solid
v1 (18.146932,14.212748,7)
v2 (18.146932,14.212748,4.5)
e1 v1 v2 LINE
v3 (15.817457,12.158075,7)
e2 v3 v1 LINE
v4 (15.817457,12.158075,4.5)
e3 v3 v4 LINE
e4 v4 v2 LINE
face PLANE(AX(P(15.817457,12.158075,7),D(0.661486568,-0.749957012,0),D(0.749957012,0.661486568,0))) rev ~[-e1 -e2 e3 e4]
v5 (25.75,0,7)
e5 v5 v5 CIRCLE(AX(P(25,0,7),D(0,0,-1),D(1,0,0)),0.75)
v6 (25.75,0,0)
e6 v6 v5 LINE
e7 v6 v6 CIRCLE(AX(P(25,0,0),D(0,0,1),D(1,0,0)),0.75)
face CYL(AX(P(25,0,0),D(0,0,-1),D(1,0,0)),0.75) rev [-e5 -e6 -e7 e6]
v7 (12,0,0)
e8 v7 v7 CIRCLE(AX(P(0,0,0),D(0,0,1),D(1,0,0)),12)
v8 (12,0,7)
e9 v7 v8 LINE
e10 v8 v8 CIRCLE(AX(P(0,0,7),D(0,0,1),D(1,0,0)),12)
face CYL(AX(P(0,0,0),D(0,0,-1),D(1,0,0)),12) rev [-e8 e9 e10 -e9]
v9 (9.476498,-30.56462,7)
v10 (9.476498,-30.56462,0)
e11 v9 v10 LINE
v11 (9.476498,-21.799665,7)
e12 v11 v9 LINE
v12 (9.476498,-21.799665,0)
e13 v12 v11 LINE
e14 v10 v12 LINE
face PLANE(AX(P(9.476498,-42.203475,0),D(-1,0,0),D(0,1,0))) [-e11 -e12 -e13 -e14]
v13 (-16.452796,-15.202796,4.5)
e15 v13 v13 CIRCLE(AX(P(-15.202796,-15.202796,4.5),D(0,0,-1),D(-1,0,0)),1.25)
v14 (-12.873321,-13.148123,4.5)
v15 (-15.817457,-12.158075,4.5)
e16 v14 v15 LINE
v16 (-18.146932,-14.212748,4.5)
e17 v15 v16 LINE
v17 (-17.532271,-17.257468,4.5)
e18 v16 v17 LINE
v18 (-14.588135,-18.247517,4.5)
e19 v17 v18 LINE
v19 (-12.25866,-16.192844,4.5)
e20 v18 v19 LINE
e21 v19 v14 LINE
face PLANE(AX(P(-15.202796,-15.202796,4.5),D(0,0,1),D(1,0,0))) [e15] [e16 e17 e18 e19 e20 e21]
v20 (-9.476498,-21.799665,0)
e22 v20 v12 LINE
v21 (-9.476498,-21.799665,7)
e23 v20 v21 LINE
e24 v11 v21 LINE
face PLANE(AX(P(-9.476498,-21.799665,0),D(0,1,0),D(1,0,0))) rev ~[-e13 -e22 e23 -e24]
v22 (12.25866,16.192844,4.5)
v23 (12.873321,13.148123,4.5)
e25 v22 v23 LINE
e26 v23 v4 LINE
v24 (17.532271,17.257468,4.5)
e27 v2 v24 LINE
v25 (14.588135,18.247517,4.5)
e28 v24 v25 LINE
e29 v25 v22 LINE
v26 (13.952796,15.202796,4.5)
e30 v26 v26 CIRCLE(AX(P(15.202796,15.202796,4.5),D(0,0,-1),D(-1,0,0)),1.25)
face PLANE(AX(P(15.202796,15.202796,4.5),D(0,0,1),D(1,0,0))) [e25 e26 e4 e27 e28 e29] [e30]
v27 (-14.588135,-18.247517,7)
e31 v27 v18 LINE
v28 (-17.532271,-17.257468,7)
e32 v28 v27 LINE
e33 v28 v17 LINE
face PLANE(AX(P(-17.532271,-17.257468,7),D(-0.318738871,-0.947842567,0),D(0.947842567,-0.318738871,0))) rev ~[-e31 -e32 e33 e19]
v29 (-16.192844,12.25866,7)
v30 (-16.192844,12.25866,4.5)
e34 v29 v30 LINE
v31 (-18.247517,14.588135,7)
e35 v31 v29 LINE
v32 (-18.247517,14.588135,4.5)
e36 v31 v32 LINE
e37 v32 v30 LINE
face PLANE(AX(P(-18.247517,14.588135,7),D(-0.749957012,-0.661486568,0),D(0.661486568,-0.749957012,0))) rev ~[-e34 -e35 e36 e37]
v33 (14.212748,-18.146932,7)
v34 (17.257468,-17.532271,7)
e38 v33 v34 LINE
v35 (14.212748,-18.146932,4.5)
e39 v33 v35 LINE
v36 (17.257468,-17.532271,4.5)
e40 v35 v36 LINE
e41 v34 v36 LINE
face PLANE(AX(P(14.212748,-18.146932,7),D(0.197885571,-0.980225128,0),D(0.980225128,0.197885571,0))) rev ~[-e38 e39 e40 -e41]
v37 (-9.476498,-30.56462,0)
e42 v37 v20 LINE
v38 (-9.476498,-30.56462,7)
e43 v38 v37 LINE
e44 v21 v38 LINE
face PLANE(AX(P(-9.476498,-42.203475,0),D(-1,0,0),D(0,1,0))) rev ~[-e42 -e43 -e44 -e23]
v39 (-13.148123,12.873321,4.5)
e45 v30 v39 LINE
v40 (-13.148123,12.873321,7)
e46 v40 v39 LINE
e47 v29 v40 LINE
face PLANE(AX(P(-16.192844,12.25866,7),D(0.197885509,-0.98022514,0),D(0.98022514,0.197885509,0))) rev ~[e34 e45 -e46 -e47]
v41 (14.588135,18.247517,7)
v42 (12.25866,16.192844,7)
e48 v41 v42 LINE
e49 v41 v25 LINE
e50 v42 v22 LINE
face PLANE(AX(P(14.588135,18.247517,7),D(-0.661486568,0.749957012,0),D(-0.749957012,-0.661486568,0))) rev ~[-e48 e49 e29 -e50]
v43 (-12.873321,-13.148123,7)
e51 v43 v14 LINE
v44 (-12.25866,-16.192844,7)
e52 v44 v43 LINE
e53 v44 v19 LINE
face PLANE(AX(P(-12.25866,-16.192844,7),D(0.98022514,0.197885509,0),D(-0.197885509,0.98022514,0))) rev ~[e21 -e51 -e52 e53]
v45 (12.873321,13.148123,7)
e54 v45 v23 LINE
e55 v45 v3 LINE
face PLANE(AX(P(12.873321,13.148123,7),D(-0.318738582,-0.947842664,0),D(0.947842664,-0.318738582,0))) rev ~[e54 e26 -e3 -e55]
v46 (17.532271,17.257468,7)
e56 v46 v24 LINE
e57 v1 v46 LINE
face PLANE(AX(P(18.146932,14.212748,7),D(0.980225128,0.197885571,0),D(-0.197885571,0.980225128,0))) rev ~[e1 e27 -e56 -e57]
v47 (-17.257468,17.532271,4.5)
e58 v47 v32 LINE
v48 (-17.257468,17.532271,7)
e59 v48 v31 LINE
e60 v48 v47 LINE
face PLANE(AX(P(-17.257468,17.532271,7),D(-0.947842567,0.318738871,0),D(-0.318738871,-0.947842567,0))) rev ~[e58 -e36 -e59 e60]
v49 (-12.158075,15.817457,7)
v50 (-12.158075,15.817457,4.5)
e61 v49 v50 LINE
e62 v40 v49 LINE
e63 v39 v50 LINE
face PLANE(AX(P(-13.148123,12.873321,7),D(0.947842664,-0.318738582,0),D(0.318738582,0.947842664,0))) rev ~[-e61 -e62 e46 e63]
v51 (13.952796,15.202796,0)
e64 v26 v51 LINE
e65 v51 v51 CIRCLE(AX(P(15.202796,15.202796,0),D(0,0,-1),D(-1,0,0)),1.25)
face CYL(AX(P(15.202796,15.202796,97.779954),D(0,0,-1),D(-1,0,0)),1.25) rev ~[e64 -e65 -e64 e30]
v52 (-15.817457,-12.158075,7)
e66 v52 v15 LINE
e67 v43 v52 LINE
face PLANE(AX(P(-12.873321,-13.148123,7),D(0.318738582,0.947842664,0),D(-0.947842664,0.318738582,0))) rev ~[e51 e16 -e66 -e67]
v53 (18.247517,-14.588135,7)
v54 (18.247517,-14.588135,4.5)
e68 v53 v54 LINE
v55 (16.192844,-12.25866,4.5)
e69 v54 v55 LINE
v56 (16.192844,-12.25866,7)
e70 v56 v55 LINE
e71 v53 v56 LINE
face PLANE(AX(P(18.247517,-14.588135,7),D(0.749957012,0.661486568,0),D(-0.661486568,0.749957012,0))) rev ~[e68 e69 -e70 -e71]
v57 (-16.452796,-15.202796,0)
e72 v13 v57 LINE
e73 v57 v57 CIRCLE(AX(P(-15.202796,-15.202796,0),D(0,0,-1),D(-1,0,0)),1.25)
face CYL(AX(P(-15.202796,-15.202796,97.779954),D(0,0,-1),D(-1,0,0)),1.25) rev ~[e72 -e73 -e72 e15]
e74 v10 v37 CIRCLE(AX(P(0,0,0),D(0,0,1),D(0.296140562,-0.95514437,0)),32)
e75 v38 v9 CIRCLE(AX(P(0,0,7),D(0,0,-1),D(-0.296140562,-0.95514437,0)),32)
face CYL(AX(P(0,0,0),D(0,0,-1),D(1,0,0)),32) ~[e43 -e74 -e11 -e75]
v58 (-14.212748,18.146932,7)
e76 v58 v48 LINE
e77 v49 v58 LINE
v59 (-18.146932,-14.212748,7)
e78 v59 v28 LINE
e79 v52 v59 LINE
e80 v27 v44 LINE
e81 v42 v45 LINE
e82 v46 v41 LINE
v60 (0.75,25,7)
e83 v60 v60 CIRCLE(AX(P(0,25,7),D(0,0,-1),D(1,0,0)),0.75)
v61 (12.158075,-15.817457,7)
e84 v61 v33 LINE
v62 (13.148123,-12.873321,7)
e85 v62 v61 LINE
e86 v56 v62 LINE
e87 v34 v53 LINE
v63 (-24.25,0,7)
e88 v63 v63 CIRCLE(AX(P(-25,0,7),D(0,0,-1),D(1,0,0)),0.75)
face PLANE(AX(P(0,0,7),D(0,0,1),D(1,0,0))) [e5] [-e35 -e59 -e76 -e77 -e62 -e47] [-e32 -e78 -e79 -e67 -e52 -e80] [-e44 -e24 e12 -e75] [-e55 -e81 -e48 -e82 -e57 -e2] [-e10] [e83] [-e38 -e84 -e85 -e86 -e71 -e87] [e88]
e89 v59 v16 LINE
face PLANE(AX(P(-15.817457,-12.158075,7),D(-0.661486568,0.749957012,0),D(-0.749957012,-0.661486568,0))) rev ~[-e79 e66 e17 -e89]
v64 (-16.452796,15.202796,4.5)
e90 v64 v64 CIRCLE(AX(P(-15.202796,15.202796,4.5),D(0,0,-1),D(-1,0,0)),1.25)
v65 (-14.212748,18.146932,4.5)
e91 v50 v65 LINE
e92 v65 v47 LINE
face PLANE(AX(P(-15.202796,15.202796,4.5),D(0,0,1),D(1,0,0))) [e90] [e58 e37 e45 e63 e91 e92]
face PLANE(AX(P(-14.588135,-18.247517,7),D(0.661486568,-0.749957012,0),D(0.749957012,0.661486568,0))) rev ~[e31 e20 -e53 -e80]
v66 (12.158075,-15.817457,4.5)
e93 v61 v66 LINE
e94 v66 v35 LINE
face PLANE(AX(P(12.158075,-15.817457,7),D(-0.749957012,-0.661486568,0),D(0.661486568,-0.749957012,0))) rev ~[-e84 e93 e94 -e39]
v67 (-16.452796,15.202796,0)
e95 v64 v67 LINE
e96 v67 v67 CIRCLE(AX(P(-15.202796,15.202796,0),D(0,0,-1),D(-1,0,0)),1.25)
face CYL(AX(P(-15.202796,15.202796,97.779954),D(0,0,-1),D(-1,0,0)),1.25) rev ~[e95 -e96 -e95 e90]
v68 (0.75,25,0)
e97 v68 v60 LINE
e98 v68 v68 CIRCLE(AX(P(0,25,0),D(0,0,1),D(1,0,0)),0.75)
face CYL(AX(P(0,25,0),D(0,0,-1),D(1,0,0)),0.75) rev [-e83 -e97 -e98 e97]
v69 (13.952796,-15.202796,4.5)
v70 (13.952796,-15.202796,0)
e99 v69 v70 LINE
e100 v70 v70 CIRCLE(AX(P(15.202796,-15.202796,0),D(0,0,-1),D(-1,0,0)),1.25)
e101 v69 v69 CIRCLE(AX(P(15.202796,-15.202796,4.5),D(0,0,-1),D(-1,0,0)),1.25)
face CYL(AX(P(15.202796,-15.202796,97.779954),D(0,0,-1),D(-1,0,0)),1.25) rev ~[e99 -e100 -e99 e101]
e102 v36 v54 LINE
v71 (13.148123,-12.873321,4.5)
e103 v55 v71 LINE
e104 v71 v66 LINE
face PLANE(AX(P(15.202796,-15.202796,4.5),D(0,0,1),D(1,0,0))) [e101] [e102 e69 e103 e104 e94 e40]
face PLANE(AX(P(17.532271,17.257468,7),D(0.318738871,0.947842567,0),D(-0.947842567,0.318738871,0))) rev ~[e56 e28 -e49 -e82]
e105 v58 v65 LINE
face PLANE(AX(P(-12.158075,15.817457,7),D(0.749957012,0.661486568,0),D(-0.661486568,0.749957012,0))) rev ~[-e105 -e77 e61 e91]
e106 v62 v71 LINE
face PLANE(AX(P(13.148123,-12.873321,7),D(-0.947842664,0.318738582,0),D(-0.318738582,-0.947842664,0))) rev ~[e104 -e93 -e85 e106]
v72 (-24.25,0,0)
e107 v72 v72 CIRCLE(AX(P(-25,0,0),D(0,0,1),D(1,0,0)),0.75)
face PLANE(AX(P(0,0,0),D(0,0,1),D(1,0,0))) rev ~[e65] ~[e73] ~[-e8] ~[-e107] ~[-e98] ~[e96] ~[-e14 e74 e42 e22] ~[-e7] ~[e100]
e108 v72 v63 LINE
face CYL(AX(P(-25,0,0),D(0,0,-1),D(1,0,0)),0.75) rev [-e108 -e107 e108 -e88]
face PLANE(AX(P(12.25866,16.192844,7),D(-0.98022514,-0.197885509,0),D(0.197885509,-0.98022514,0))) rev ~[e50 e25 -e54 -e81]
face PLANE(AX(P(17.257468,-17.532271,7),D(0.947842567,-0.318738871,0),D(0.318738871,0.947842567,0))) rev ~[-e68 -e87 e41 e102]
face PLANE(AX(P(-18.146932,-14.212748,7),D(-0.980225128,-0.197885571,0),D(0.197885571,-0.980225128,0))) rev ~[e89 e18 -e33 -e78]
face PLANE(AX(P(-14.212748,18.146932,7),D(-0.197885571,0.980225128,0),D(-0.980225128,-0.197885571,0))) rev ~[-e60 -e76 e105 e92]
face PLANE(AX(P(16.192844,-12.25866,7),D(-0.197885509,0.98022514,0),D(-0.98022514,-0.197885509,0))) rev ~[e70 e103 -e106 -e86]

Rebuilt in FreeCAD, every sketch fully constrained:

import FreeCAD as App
import Part
import Sketcher
from FreeCAD import Vector


def add_polygon(sketch, points):
    """Adds a closed chain of lines whose ends are joined by coincident constraints."""
    first, n = sketch.GeometryCount, len(points)
    for a, b in zip(points, points[1:] + points[:1]):
        sketch.addGeometry(Part.LineSegment(App.Vector(*a, 0), App.Vector(*b, 0)), False)
    for i in range(n):
        sketch.addConstraint(Sketcher.Constraint("Coincident", first + i, 2, first + (i + 1) % n, 1))

doc = App.newDocument("Part")
body = doc.addObject("PartDesign::Body", "Body")

sketch1 = body.newObject("Sketcher::SketchObject", "Sketch")
sketch1.AttachmentSupport = (doc.getObject("XY_Plane"), [""])
sketch1.MapMode = "FlatFace"
sketch1.addGeometry(Part.Circle(Vector(0, 0, 0), Vector(0, 0, 1), 32), False)
sketch1.addGeometry(Part.Circle(Vector(0, 0, 0), Vector(0, 0, 1), 12), False)
sketch1.addConstraint(Sketcher.Constraint("Coincident", 0, 3, -1, 1))
sketch1.addConstraint(Sketcher.Constraint("Coincident", 1, 3, -1, 1))
sketch1.addConstraint(Sketcher.Constraint("Diameter", 0, 64.0))
sketch1.addConstraint(Sketcher.Constraint("Diameter", 1, 24.0))
pad1 = body.newObject("PartDesign::Pad", "Pad")
pad1.Profile = sketch1
pad1.Length = 7

sketch2 = body.newObject("Sketcher::SketchObject", "Sketch001")
sketch2.AttachmentSupport = (doc.getObject("XY_Plane"), [""])
sketch2.MapMode = "FlatFace"
sketch2.AttachmentOffset = App.Placement(Vector(0, 0, 7), App.Rotation())
sketch2.addGeometry(Part.Circle(Vector(-15.2, 15.2, 0), Vector(0, 0, 1), 1.2), False)
sketch2.addGeometry(Part.Circle(Vector(15.2, 15.2, 0), Vector(0, 0, 1), 1.2), False)
sketch2.addGeometry(Part.Circle(Vector(15.2, -15.2, 0), Vector(0, 0, 1), 1.2), False)
sketch2.addGeometry(Part.Circle(Vector(-15.2, -15.2, 0), Vector(0, 0, 1), 1.2), False)
sketch2.addConstraint(Sketcher.Constraint("Equal", 0, 1))
sketch2.addConstraint(Sketcher.Constraint("Equal", 1, 2))
sketch2.addConstraint(Sketcher.Constraint("Equal", 2, 3))
sketch2.addConstraint(Sketcher.Constraint("Symmetric", 0, 3, 2, 3, -1, 1))
sketch2.addConstraint(Sketcher.Constraint("Symmetric", 1, 3, 3, 3, -1, 1))
sketch2.addConstraint(Sketcher.Constraint("Symmetric", 0, 3, 1, 3, -2))
sketch2.addConstraint(Sketcher.Constraint("Diameter", 0, 2.5))
sketch2.addConstraint(Sketcher.Constraint("DistanceX", 0, 3, 1, 3, 30.405592))
sketch2.addConstraint(Sketcher.Constraint("DistanceY", 2, 3, 1, 3, 30.405592))
doc.recompute()
hole = body.newObject("PartDesign::Hole", "Hole")
hole.Profile = sketch2
hole.ThreadType = "None"
hole.Diameter = 2.5
hole.DepthType = "ThroughAll"

sketch3 = body.newObject("Sketcher::SketchObject", "Sketch002")
sketch3.AttachmentSupport = (doc.getObject("XY_Plane"), [""])
sketch3.MapMode = "FlatFace"
sketch3.AttachmentOffset = App.Placement(Vector(0, 0, 7), App.Rotation())
add_polygon(sketch3, [(-12.2, 15.8), (-14.2, 18.1), (-17.3, 17.5), (-18.2, 14.6), (-16.2, 12.3), (-13.1, 12.9)])
add_polygon(sketch3, [(12.3, 16.2), (12.9, 13.1), (15.8, 12.2), (18.1, 14.2), (17.5, 17.3), (14.6, 18.2)])
add_polygon(sketch3, [(16.2, -12.3), (13.1, -12.9), (12.2, -15.8), (14.2, -18.1), (17.3, -17.5), (18.2, -14.6)])
add_polygon(sketch3, [(-12.3, -16.2), (-12.9, -13.1), (-15.8, -12.2), (-18.1, -14.2), (-17.5, -17.3), (-14.6, -18.2)])
sketch3.addConstraint(Sketcher.Constraint("Symmetric", 4, 2, 12, 2, -1, 1))
sketch3.addConstraint(Sketcher.Constraint("Symmetric", 5, 2, 13, 2, -1, 1))
sketch3.addConstraint(Sketcher.Constraint("Symmetric", 0, 2, 14, 2, -1, 1))
sketch3.addConstraint(Sketcher.Constraint("Symmetric", 1, 2, 15, 2, -1, 1))
sketch3.addConstraint(Sketcher.Constraint("Symmetric", 2, 2, 16, 2, -1, 1))
sketch3.addConstraint(Sketcher.Constraint("Symmetric", 3, 2, 17, 2, -1, 1))
sketch3.addConstraint(Sketcher.Constraint("Symmetric", 6, 2, 18, 2, -1, 1))
sketch3.addConstraint(Sketcher.Constraint("Symmetric", 7, 2, 19, 2, -1, 1))
sketch3.addConstraint(Sketcher.Constraint("Symmetric", 8, 2, 20, 2, -1, 1))
sketch3.addConstraint(Sketcher.Constraint("Symmetric", 9, 2, 21, 2, -1, 1))
sketch3.addConstraint(Sketcher.Constraint("Symmetric", 10, 2, 22, 2, -1, 1))
sketch3.addConstraint(Sketcher.Constraint("Symmetric", 11, 2, 23, 2, -1, 1))
sketch3.addConstraint(Sketcher.Constraint("Parallel", 0, 3))
sketch3.addConstraint(Sketcher.Constraint("Parallel", 1, 4))
sketch3.addConstraint(Sketcher.Constraint("Parallel", 2, 5))
sketch3.addConstraint(Sketcher.Constraint("Perpendicular", 4, 6))
sketch3.addConstraint(Sketcher.Constraint("Perpendicular", 5, 7))
sketch3.addConstraint(Sketcher.Constraint("Perpendicular", 3, 8))
sketch3.addConstraint(Sketcher.Constraint("Parallel", 6, 9))
sketch3.addConstraint(Sketcher.Constraint("Parallel", 7, 10))
sketch3.addConstraint(Sketcher.Constraint("Parallel", 8, 11))
sketch3.addConstraint(Sketcher.Constraint("Equal", 0, 1))
sketch3.addConstraint(Sketcher.Constraint("Equal", 1, 2))
sketch3.addConstraint(Sketcher.Constraint("Equal", 2, 3))
sketch3.addConstraint(Sketcher.Constraint("Equal", 5, 6))
sketch3.addConstraint(Sketcher.Constraint("Equal", 6, 7))
sketch3.addConstraint(Sketcher.Constraint("Equal", 7, 8))
sketch3.addConstraint(Sketcher.Constraint("Equal", 8, 9))
sketch3.addConstraint(Sketcher.Constraint("DistanceY", 4, 2, 6, 2, 0.274802))
sketch3.addConstraint(Sketcher.Constraint("DistanceX", 3, 2, 7, 2, 32.010301))
sketch3.addConstraint(Sketcher.Constraint("DistanceX", 6, 2, 12, 2, 0.274802))
sketch3.addConstraint(Sketcher.Constraint("DistanceY", 13, 2, 11, 2, 32.010301))
sketch3.addConstraint(Sketcher.Constraint("DistanceY", -1, 1, 0, 2, 18.146932))
sketch3.addConstraint(Sketcher.Constraint("DistanceY", -1, 1, 1, 2, 17.532271))
sketch3.addConstraint(Sketcher.Constraint("DistanceY", -1, 1, 3, 2, 12.25866))
sketch3.addConstraint(Sketcher.Constraint("DistanceX", 1, 2, 0, 2, 3.04472))
pocket1 = body.newObject("PartDesign::Pocket", "Pocket")
pocket1.Profile = sketch3
pocket1.Length = 2.5

sketch4 = body.newObject("Sketcher::SketchObject", "Sketch003")
sketch4.AttachmentSupport = (doc.getObject("XY_Plane"), [""])
sketch4.MapMode = "FlatFace"
sketch4.addGeometry(Part.Circle(Vector(-25, 0, 0), Vector(0, 0, 1), 0.8), False)
sketch4.addGeometry(Part.Circle(Vector(0, -25, 0), Vector(0, 0, 1), 0.8), False)
sketch4.addGeometry(Part.Circle(Vector(25, 0, 0), Vector(0, 0, 1), 0.8), False)
sketch4.addGeometry(Part.Circle(Vector(0, 25, 0), Vector(0, 0, 1), 0.8), False)
sketch4.addConstraint(Sketcher.Constraint("Equal", 0, 1))
sketch4.addConstraint(Sketcher.Constraint("Equal", 1, 2))
sketch4.addConstraint(Sketcher.Constraint("Equal", 2, 3))
sketch4.addConstraint(Sketcher.Constraint("Symmetric", 0, 3, 2, 3, -1, 1))
sketch4.addConstraint(Sketcher.Constraint("Symmetric", 1, 3, 3, 3, -1, 1))
sketch4.addConstraint(Sketcher.Constraint("PointOnObject", 0, 3, -1))
sketch4.addConstraint(Sketcher.Constraint("PointOnObject", 1, 3, -2))
sketch4.addConstraint(Sketcher.Constraint("Diameter", 0, 1.5))
sketch4.addConstraint(Sketcher.Constraint("DistanceX", 0, 3, -1, 1, 25.0))
sketch4.addConstraint(Sketcher.Constraint("DistanceY", 1, 3, -1, 1, 25.0))
pocket2 = body.newObject("PartDesign::Pocket", "Pocket001")
pocket2.Profile = sketch4
pocket2.Length = 25
pocket2.Reversed = True

sketch5 = body.newObject("Sketcher::SketchObject", "Sketch004")
sketch5.AttachmentSupport = (doc.getObject("XY_Plane"), [""])
sketch5.MapMode = "FlatFace"
add_polygon(sketch5, [(-9, -22), (-9, -42), (9, -42), (9, -22)])
sketch5.addConstraint(Sketcher.Constraint("Vertical", 0))
sketch5.addConstraint(Sketcher.Constraint("Horizontal", 1))
sketch5.addConstraint(Sketcher.Constraint("Vertical", 2))
sketch5.addConstraint(Sketcher.Constraint("Horizontal", 3))
sketch5.addConstraint(Sketcher.Constraint("DistanceY", 0, 2, 0, 1, 20.40381))
sketch5.addConstraint(Sketcher.Constraint("DistanceX", 1, 1, 1, 2, 18.952996))
sketch5.addConstraint(Sketcher.Constraint("DistanceX", 0, 2, -1, 1, 9.476498))
sketch5.addConstraint(Sketcher.Constraint("DistanceY", 0, 2, -1, 1, 42.203475))
pocket3 = body.newObject("PartDesign::Pocket", "Pocket002")
pocket3.Profile = sketch5
pocket3.Length = 25
pocket3.Reversed = True

doc.recompute()
